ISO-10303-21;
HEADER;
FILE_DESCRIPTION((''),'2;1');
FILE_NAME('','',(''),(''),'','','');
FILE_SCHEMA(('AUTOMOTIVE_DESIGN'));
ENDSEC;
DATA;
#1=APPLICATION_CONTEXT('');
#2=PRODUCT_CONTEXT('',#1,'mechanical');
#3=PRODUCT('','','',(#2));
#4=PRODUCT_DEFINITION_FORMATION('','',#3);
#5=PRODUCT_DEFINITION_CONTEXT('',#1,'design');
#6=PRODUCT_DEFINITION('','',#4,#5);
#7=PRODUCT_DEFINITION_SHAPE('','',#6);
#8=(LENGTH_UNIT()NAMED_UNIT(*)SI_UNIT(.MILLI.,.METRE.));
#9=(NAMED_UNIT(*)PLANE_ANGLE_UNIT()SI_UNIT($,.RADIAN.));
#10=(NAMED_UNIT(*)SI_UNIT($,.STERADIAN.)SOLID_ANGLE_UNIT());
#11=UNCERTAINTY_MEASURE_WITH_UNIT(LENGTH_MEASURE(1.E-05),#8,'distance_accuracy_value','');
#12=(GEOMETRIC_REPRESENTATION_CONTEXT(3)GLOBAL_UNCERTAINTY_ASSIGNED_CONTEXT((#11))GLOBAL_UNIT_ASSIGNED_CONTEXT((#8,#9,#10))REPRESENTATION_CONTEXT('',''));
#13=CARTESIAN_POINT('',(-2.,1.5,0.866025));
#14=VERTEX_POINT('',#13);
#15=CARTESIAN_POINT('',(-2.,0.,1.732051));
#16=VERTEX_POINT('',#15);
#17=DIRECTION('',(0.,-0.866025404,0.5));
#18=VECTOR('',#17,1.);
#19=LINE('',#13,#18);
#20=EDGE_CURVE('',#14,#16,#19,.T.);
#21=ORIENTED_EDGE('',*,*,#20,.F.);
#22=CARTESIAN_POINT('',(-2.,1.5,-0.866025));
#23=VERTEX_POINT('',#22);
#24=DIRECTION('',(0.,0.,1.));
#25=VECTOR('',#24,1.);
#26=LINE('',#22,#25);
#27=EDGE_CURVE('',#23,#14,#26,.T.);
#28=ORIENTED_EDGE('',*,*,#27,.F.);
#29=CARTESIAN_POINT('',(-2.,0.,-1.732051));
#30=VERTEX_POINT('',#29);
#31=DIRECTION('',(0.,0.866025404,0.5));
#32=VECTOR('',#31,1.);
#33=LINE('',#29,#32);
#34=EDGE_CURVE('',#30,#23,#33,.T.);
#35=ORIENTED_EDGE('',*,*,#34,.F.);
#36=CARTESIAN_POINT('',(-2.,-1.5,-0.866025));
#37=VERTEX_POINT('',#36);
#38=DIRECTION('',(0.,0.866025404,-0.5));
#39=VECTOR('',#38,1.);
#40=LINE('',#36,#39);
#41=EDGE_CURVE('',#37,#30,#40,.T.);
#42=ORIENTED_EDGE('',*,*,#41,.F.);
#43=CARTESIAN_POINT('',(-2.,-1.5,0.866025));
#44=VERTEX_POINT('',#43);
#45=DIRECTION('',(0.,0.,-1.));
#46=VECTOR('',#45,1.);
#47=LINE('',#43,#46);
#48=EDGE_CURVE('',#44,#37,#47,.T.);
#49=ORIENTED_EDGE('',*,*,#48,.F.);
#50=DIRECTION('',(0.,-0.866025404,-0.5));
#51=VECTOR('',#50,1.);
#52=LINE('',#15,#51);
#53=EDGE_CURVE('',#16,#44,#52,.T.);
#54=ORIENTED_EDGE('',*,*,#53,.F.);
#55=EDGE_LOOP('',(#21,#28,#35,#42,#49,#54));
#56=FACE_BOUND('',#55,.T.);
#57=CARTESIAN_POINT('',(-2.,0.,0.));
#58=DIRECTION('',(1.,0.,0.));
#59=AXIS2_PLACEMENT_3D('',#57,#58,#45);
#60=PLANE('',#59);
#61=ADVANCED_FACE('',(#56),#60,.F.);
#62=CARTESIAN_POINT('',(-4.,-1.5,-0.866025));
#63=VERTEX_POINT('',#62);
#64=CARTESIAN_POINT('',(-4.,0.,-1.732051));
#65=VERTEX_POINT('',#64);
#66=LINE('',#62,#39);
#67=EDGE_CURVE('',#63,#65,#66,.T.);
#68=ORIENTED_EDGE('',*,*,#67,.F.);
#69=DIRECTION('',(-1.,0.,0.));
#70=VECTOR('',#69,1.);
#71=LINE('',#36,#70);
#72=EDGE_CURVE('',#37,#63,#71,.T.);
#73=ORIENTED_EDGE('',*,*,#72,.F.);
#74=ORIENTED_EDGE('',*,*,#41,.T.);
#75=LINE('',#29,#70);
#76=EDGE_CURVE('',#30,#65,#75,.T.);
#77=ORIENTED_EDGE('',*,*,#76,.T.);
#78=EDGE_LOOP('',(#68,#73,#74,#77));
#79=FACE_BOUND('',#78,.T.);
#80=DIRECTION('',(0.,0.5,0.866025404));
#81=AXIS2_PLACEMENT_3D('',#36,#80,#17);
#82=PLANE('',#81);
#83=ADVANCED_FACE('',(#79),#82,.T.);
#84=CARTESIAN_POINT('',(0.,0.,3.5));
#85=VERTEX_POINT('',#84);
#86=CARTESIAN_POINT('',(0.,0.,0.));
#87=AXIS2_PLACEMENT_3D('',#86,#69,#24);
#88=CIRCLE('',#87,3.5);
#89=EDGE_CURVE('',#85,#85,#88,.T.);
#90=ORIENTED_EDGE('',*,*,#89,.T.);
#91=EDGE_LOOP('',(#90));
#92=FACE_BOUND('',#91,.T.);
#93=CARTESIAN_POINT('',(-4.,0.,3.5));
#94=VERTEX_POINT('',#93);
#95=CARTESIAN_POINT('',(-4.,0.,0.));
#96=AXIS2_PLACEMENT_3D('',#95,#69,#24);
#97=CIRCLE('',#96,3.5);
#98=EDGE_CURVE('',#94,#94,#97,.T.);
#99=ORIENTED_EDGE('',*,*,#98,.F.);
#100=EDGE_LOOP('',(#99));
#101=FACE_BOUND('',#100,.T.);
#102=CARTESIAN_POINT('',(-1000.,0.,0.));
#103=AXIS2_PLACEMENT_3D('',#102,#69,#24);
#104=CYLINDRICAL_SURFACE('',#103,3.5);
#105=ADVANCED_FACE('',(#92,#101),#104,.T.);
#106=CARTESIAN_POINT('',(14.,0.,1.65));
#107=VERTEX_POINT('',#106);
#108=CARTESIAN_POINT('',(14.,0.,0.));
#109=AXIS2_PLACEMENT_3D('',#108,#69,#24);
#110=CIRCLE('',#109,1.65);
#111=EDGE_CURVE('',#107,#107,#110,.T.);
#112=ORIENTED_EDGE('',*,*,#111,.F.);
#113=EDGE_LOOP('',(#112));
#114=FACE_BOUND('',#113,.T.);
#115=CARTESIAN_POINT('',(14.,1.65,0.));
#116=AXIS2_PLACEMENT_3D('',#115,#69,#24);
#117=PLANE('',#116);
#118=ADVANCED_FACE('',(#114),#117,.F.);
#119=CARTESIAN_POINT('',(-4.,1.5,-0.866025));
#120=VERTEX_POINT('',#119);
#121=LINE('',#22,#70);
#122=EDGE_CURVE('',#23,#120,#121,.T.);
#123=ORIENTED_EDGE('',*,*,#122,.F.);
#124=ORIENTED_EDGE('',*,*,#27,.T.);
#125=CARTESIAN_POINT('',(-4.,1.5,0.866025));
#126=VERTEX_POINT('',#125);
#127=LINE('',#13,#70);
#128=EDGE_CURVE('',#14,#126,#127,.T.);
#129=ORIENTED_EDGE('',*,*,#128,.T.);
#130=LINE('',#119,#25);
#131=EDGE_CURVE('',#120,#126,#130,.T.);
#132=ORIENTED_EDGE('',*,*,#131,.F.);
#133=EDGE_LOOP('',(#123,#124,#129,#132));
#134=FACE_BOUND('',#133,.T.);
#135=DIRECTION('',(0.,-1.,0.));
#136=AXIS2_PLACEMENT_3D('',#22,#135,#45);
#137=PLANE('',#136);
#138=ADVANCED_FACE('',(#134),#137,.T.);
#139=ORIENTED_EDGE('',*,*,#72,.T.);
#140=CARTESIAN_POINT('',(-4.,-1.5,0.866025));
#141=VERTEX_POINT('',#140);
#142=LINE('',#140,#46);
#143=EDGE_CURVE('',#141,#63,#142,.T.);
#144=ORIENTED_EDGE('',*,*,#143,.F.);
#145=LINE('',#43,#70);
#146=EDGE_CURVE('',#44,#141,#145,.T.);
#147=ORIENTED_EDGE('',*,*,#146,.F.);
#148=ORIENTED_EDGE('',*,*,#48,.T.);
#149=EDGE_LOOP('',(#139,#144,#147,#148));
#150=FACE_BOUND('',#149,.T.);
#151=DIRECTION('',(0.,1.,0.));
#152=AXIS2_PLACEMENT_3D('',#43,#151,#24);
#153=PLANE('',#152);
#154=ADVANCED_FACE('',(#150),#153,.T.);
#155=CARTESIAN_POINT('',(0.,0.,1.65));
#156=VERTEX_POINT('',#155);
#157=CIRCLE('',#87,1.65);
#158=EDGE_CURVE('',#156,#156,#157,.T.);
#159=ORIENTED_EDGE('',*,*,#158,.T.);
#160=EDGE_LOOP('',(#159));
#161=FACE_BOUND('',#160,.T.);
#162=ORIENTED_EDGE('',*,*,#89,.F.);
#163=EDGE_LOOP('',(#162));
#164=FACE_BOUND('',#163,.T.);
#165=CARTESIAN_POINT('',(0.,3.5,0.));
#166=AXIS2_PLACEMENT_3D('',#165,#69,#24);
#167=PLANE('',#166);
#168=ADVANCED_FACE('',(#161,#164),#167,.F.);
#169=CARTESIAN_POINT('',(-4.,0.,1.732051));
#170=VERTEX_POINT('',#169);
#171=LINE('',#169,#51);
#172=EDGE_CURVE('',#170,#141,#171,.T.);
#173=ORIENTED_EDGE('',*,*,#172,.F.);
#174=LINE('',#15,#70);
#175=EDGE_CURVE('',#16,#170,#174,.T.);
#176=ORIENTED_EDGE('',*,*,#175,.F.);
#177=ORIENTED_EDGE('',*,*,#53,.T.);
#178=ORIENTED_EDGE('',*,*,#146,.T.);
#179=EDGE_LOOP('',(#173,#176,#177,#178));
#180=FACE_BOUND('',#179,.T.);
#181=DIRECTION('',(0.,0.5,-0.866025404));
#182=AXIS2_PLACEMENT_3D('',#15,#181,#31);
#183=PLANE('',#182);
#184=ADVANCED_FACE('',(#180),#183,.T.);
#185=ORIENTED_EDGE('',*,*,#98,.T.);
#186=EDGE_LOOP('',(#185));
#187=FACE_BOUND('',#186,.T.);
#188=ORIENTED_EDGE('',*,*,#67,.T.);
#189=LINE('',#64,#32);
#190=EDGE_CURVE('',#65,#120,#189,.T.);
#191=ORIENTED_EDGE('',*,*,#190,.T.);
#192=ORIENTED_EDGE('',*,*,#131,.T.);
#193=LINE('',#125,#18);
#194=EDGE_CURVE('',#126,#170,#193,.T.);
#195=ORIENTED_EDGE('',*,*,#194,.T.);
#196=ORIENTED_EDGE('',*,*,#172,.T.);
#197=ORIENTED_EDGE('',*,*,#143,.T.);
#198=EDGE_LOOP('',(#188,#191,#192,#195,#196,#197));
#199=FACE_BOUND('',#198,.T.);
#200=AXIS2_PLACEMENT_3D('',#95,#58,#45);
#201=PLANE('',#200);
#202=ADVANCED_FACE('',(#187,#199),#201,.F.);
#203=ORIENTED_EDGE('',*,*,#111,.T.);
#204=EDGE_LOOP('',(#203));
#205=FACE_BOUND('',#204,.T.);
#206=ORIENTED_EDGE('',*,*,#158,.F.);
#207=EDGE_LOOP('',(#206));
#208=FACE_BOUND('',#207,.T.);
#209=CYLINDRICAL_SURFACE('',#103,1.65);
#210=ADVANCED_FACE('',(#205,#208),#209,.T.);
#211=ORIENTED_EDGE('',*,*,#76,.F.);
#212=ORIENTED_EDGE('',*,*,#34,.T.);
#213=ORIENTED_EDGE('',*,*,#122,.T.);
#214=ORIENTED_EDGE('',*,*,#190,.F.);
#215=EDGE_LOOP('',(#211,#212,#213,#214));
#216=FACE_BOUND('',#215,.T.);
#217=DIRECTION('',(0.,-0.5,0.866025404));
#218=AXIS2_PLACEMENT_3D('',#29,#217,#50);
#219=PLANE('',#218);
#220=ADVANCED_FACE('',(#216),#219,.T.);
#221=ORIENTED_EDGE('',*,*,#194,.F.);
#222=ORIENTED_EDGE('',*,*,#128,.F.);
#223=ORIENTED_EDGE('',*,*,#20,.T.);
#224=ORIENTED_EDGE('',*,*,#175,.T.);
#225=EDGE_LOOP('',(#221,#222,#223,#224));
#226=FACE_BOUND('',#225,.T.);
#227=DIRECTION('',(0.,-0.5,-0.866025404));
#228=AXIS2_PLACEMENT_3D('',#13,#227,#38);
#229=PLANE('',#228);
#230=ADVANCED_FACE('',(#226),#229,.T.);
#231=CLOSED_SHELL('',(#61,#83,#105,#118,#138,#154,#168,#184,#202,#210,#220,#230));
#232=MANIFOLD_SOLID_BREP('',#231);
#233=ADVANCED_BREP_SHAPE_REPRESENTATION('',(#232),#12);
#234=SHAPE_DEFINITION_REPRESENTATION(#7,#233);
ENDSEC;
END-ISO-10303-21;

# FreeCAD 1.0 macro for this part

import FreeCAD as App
import Part
import Sketcher
Q = App.Units.Quantity


def add_polygon(sketch, points):
    """Adds a closed chain of lines whose ends are joined by coincident constraints."""
    first, n = sketch.GeometryCount, len(points)
    for a, b in zip(points, points[1:] + points[:1]):
        sketch.addGeometry(Part.LineSegment(App.Vector(*a, 0), App.Vector(*b, 0)), False)
    for i in range(n):
        sketch.addConstraint(Sketcher.Constraint("Coincident", first + i, 2, first + (i + 1) % n, 1))

doc = App.newDocument("Part")
body = doc.addObject("PartDesign::Body", "Body")

# Sketch on XY plane
sketch1 = body.newObject("Sketcher::SketchObject", "Sketch")
sketch1.AttachmentSupport = (doc.getObject("XY_Plane"), [""])
sketch1.MapMode = "FlatFace"
add_polygon(sketch1, [(-4, 3.5), (-4, 0), (14, 0), (14, 1.65), (0, 1.65), (0, 3.5)])  # lines 0-5
sketch1.addConstraint([
    Sketcher.Constraint("Vertical", 0),
    Sketcher.Constraint("Horizontal", 1),
    Sketcher.Constraint("Vertical", 2),
    Sketcher.Constraint("Horizontal", 3),
    Sketcher.Constraint("Vertical", 4),
    Sketcher.Constraint("Horizontal", 5),
    Sketcher.Constraint("PointOnObject", 0, 2, -1),
    Sketcher.Constraint("PointOnObject", 3, 2, -2),
    Sketcher.Constraint("DistanceX", 1, 1, 1, 2, 18.0),
    Sketcher.Constraint("DistanceX", 3, 2, 3, 1, 14.0),
    Sketcher.Constraint("DistanceY", 0, 2, 0, 1, 3.5),
    Sketcher.Constraint("DistanceY", 2, 1, 2, 2, 1.65),
])
revolution = body.newObject("PartDesign::Revolution", "Revolution")
revolution.Profile = sketch1
revolution.ReferenceAxis = (sketch1, ["H_Axis"])
revolution.Angle = 360

# Sketch on YZ plane
sketch2 = body.newObject("Sketcher::SketchObject", "Sketch001")
sketch2.AttachmentSupport = (doc.getObject("YZ_Plane"), [""])
sketch2.MapMode = "FlatFace"
sketch2.AttachmentOffset = App.Placement(App.Vector(0, 0, -4), App.Rotation())
add_polygon(sketch2, [(0, -1.732051), (1.5, -0.866025), (1.5, 0.866025), (0, 1.732051), (-1.5, 0.866025), (-1.5, -0.866025)])  # lines 0-5
sketch2.addConstraint([
    Sketcher.Constraint("Vertical", 1),
    Sketcher.Constraint("Vertical", 4),
    Sketcher.Constraint("Symmetric", 0, 2, 3, 2, -1, 1),
    Sketcher.Constraint("Symmetric", 2, 2, 5, 2, -1, 1),
    Sketcher.Constraint("PointOnObject", 2, 2, -2),
    Sketcher.Constraint("Parallel", 2, 5),
    Sketcher.Constraint("Horizontal", 1, 2, 3, 2),
    Sketcher.Constraint("Angle", 0, Q("30 deg")),
    Sketcher.Constraint("DistanceX", 3, 2, 1, 2, 3.0),
    Sketcher.Constraint("DistanceY", 1, 1, 1, 2, 1.732051),
])
pocket1 = body.newObject("PartDesign::Pocket", "Pocket")
pocket1.Profile = sketch2
pocket1.Length = 2
pocket1.Reversed = True

doc.recompute()
